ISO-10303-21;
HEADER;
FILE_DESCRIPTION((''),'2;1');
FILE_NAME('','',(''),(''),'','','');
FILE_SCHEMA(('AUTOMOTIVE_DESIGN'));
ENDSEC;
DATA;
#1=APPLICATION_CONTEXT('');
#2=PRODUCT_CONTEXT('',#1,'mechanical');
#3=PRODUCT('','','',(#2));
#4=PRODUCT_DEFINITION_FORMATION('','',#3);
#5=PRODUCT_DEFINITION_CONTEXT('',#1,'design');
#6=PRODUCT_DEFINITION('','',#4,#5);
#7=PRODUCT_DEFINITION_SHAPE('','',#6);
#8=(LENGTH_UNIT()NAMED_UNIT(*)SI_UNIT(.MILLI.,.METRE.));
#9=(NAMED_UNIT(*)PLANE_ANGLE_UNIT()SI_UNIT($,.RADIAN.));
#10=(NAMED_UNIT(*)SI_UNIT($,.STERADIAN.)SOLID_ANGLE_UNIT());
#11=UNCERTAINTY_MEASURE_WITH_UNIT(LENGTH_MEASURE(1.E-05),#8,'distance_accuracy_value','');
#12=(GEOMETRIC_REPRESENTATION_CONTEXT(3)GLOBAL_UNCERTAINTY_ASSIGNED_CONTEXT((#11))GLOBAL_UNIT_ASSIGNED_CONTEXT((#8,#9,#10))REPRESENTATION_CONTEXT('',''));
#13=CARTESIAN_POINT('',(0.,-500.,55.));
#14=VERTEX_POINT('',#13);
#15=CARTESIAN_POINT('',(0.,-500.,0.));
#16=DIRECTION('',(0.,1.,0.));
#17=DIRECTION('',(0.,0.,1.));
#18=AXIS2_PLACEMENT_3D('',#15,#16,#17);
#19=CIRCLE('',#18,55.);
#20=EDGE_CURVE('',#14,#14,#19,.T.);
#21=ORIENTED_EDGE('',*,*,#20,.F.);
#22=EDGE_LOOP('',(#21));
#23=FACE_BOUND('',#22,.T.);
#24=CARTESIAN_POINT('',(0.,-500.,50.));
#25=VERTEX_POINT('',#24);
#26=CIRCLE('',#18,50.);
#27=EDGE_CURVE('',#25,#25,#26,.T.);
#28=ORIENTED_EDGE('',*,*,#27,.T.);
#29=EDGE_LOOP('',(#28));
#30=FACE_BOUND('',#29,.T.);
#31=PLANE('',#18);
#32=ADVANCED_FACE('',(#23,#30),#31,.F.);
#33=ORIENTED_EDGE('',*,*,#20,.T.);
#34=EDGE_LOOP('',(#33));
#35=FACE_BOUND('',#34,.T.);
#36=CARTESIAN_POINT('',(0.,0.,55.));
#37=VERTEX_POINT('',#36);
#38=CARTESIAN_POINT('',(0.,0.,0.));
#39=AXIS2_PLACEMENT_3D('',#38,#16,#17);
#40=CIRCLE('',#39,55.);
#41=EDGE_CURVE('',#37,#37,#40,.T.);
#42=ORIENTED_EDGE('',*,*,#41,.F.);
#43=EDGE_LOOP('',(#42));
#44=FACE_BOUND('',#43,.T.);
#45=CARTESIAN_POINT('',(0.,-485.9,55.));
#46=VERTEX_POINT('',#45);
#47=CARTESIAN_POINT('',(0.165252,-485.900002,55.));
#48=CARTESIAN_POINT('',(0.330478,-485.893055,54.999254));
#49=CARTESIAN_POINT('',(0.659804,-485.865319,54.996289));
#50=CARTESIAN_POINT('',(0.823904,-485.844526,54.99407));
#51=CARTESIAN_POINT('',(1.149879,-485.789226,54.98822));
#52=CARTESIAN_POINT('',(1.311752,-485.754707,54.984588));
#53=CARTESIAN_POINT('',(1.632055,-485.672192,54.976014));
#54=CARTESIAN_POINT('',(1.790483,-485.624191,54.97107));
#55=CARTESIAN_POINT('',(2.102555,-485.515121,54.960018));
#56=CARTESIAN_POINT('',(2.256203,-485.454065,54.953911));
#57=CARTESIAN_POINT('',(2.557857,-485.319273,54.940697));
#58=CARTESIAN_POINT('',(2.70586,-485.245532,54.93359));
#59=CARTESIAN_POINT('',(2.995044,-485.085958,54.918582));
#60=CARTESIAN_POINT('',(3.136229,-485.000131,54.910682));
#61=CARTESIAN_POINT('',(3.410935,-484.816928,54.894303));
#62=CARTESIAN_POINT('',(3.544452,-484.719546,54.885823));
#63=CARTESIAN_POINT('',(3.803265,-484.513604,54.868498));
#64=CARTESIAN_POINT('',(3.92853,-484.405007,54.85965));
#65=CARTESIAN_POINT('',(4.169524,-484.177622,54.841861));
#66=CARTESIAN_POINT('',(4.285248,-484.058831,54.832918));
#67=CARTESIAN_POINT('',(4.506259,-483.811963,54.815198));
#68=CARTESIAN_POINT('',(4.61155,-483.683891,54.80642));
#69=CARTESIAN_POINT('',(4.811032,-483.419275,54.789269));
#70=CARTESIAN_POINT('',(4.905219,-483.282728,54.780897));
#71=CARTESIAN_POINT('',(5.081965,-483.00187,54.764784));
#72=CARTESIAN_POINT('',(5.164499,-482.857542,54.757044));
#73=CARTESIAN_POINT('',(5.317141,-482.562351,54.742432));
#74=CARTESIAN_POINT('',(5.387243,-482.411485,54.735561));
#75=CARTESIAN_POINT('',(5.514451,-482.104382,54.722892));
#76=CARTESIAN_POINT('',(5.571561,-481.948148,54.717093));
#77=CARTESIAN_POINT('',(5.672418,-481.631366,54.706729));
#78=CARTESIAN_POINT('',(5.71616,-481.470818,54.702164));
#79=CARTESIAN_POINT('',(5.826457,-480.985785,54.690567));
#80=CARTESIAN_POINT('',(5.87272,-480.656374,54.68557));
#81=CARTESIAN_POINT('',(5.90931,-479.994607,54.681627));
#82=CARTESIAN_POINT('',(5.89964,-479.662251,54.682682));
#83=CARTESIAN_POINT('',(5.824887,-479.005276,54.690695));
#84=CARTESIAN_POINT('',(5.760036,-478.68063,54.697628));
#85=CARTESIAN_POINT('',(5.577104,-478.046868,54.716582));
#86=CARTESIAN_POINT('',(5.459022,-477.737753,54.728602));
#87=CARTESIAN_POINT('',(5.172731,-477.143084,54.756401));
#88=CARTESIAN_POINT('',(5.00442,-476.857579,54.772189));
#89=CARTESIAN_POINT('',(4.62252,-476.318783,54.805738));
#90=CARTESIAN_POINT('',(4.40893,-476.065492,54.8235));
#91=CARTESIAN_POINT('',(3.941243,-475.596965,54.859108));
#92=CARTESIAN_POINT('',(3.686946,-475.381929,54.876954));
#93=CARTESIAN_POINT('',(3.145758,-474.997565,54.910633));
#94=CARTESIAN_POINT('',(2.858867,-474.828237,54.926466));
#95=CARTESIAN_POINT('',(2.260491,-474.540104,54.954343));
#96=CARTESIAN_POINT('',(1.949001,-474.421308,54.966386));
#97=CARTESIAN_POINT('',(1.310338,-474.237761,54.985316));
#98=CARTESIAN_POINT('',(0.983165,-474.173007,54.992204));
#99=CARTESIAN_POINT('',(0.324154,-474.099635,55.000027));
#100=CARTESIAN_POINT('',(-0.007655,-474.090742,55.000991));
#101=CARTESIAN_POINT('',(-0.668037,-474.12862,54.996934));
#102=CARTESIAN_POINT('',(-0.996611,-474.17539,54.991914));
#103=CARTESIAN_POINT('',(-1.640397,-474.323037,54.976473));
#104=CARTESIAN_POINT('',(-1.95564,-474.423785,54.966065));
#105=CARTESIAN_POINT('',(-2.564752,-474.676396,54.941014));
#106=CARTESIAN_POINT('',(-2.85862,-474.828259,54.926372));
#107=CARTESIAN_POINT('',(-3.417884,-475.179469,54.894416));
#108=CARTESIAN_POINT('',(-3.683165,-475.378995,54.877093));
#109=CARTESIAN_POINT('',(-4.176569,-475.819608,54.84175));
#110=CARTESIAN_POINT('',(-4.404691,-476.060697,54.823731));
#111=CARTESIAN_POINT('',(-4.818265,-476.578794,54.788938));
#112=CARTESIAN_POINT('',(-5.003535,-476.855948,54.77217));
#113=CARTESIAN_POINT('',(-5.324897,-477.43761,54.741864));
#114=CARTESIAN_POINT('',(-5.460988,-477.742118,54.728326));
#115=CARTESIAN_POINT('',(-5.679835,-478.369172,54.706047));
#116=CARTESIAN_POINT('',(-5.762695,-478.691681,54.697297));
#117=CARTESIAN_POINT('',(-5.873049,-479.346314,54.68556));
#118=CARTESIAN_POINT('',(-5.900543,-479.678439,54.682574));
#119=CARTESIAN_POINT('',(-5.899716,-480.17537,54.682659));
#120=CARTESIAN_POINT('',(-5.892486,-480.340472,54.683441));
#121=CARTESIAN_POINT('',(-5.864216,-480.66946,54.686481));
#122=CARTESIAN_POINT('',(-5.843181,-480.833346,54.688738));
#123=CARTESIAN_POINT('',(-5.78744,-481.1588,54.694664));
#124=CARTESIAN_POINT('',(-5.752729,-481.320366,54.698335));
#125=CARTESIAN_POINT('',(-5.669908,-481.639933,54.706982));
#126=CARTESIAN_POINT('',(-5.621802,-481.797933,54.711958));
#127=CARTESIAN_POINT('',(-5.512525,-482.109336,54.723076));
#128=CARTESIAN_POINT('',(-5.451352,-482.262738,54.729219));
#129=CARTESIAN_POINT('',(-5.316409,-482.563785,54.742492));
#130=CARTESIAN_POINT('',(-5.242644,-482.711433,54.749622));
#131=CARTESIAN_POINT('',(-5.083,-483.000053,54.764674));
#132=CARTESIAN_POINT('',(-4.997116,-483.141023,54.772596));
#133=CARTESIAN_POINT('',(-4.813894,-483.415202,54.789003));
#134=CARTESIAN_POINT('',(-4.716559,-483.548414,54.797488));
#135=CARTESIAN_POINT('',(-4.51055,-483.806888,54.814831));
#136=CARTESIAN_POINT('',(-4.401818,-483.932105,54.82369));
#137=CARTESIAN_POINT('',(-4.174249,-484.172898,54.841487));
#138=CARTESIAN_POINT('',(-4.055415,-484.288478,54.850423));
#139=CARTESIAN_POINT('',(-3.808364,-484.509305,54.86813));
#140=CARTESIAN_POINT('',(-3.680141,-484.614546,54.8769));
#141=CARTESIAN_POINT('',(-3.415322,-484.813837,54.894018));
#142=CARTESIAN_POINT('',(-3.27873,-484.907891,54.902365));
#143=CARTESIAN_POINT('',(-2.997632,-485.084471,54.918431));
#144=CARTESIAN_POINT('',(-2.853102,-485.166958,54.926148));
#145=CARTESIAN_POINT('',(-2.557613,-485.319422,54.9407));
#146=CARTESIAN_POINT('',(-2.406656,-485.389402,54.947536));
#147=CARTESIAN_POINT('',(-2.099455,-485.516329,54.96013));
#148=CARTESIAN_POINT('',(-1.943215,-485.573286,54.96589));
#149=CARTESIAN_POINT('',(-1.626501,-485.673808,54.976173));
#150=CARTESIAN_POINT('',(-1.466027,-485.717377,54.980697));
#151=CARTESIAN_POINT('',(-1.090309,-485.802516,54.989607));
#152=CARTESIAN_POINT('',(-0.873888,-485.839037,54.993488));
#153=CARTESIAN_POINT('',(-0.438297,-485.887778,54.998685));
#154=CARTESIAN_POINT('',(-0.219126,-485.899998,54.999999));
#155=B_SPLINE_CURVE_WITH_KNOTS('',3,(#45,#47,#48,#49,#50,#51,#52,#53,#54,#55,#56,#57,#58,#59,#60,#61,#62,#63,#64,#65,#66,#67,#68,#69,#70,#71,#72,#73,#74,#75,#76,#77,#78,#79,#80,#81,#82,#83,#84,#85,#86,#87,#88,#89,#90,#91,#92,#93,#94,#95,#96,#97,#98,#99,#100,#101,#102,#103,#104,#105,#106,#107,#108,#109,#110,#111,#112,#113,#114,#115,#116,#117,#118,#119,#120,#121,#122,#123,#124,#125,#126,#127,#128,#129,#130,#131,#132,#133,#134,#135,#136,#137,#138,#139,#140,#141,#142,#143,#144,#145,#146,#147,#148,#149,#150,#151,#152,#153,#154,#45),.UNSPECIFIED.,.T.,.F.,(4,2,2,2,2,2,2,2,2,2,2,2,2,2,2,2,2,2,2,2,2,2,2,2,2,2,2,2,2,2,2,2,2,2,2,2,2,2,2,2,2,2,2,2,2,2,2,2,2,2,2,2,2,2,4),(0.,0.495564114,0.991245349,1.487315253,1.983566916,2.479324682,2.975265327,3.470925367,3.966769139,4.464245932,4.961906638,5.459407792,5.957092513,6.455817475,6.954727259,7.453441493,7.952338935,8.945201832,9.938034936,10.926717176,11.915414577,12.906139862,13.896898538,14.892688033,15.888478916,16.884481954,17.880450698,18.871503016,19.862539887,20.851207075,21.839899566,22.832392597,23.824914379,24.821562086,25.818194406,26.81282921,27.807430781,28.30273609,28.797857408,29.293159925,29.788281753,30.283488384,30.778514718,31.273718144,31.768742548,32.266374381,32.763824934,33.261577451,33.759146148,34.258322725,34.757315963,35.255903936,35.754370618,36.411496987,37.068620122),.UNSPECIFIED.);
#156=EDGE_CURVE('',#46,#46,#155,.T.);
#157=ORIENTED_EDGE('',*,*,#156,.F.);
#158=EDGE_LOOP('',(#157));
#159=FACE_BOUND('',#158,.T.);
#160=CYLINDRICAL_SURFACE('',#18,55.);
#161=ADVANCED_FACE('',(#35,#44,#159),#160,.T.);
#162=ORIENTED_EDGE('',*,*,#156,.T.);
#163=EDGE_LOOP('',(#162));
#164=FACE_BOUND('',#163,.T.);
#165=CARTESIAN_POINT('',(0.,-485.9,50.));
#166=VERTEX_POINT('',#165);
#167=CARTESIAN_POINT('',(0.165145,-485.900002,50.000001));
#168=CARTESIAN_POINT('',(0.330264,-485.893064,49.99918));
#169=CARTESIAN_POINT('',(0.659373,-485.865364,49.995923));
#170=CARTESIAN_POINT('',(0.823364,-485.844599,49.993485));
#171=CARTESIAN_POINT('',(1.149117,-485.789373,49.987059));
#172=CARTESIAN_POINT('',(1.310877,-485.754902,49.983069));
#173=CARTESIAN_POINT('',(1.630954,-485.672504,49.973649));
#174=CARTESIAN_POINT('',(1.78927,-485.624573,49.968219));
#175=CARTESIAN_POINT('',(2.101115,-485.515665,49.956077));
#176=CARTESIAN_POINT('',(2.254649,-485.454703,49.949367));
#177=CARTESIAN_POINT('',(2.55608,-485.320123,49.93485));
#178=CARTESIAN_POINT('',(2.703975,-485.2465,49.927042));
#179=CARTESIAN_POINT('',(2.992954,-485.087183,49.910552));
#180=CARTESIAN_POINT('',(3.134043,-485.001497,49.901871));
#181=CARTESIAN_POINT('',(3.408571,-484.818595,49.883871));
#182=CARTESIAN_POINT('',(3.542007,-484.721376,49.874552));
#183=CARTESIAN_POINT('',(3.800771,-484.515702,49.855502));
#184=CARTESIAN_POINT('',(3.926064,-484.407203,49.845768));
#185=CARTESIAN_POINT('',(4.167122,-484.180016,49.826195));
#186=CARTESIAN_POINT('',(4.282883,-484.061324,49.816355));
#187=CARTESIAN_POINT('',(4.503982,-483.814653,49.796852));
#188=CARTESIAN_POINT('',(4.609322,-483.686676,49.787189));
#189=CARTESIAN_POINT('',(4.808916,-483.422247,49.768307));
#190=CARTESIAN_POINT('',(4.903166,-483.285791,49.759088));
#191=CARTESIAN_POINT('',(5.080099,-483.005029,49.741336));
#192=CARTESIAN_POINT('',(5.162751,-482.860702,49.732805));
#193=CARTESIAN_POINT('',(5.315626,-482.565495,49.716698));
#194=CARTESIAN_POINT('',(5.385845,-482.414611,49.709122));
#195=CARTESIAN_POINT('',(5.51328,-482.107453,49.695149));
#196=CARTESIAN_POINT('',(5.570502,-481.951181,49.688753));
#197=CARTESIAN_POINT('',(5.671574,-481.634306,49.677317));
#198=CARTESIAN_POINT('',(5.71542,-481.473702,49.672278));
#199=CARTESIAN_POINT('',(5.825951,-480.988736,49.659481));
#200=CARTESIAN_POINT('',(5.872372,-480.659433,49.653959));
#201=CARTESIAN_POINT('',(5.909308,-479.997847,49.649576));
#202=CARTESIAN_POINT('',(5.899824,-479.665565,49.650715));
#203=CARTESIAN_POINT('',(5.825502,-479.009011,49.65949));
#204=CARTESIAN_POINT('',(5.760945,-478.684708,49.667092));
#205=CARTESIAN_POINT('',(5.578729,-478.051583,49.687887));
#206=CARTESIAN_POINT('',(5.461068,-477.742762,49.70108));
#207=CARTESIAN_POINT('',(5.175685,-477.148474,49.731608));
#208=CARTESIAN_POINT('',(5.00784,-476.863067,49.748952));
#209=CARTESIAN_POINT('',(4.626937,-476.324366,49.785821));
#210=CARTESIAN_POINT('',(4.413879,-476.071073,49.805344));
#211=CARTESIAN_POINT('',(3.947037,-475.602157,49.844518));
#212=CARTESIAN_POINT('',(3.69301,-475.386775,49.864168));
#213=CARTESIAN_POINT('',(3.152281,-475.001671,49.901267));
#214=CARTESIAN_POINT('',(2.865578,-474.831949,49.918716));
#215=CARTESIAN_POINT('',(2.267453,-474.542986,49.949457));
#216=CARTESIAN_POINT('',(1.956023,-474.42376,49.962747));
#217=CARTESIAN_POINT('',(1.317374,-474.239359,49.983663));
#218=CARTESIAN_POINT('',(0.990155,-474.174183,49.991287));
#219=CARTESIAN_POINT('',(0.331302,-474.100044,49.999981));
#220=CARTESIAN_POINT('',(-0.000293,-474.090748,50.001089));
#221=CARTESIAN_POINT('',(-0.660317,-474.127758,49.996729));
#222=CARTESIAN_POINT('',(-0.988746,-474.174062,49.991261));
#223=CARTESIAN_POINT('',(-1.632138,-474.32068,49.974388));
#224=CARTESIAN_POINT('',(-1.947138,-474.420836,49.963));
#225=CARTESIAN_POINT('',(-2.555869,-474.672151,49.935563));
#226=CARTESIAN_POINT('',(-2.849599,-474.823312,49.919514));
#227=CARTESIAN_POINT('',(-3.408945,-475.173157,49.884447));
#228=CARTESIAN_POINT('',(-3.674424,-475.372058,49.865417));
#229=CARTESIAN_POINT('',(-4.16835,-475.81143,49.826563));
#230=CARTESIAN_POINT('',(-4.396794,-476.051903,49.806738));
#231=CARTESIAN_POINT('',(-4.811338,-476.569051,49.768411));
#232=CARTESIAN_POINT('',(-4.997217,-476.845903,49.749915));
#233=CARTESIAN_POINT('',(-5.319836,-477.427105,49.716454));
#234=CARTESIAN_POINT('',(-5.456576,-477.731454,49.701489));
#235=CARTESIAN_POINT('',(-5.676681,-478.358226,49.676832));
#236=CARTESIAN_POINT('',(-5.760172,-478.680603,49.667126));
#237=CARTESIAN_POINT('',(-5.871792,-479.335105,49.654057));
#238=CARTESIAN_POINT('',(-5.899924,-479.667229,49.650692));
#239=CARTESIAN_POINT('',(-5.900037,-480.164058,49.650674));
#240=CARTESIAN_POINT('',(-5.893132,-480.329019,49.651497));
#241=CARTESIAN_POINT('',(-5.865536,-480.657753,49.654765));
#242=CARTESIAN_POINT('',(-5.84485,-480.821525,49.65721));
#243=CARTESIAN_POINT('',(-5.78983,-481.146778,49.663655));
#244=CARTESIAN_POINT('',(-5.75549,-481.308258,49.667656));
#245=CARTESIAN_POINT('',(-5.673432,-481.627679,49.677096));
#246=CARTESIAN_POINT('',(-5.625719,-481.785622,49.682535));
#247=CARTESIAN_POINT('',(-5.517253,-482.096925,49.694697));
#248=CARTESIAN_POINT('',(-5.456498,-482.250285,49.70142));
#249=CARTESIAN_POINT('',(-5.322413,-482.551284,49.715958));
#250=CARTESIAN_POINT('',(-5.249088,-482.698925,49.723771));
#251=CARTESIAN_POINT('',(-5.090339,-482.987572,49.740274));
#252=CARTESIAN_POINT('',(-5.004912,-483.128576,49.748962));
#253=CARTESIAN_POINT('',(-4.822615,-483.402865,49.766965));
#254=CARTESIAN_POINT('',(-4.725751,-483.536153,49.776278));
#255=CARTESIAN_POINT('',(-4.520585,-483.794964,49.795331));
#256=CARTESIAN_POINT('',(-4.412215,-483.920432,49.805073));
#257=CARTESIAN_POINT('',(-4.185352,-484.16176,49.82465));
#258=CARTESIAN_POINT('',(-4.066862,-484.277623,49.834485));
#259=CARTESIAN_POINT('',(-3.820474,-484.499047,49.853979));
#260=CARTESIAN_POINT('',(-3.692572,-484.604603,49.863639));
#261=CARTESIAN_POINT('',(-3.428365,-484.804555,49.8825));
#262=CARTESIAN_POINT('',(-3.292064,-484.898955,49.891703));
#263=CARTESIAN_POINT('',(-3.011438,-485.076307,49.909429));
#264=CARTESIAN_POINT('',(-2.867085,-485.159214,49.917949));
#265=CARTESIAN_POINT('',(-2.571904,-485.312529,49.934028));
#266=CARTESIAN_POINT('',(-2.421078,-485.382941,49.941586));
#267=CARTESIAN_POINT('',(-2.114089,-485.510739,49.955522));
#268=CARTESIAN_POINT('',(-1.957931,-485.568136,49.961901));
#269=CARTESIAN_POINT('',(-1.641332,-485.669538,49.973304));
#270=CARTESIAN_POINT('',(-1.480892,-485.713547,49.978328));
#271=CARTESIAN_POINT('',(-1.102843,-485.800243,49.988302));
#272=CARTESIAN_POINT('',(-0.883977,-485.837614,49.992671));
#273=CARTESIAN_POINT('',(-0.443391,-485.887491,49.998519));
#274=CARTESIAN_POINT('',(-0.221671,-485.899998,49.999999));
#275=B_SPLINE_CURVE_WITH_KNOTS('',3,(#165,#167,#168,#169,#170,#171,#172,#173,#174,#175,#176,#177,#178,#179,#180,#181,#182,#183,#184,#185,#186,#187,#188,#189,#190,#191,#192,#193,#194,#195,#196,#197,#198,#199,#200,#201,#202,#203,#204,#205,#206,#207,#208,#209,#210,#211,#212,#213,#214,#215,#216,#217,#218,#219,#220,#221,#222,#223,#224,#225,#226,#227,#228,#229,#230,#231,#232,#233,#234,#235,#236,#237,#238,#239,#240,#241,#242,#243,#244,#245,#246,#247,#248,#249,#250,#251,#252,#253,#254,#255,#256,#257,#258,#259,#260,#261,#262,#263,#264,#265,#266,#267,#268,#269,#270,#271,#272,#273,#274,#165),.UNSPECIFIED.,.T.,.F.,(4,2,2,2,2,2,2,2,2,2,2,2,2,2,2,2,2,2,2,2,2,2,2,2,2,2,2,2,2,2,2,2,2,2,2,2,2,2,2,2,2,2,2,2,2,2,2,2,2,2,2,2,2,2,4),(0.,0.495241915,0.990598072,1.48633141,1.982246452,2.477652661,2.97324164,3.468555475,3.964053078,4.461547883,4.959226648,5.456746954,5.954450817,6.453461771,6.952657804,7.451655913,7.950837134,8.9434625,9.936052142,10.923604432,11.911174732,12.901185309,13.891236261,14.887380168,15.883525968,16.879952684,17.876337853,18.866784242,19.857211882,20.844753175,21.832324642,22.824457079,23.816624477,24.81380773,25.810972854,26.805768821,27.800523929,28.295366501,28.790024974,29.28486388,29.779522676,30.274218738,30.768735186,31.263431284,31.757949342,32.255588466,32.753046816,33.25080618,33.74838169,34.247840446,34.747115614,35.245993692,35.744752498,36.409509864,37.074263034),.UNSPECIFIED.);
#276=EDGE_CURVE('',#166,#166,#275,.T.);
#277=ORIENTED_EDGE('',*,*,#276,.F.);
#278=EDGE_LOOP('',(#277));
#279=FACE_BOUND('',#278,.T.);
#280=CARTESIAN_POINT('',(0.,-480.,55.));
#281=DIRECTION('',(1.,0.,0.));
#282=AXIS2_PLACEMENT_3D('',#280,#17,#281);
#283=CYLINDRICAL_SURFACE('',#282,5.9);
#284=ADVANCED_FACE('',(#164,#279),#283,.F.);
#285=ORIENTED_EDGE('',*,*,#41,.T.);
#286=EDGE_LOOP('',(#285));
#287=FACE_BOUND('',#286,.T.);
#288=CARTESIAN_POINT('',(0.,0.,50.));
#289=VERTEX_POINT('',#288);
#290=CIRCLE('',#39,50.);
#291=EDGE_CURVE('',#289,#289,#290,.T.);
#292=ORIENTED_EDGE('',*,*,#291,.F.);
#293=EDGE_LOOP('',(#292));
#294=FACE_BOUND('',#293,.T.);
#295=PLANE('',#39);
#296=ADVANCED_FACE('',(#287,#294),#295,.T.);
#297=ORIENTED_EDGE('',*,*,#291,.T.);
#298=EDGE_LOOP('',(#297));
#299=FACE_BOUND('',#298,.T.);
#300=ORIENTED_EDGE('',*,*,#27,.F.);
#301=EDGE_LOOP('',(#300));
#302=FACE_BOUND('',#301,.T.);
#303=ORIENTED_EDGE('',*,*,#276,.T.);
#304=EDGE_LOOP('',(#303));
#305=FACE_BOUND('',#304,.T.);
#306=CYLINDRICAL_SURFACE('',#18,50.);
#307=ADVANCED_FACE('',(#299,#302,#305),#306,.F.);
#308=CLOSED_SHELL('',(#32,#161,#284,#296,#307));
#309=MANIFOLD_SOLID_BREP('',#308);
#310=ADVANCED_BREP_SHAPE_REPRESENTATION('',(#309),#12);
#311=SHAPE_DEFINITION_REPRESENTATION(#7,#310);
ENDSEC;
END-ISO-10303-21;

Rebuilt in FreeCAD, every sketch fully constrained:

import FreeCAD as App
import Part
import Sketcher

V = App.Vector

doc = App.newDocument("Part")
params = doc.addObject("Spreadsheet::Sheet", "Params")
for row, (alias, value) in enumerate([
    ("sketch1_diameter", "110 mm"),
    ("sketch1_diameter2", "100 mm"),
    ("pad1_length", "500 mm"),
    ("sketch2_diameter", "11.8 mm"),
    ("hole_diameter", "11.8 mm"),
    ("hole_depth", "30.32 mm"),
], start=1):
    params.set(f"A{row}", alias)
    params.set(f"B{row}", "=" + value)
    params.setAlias(f"B{row}", alias)

body = doc.addObject("PartDesign::Body", "Body")

# Sketch on XZ plane
sketch1 = body.newObject("Sketcher::SketchObject", "Sketch")
sketch1.AttachmentSupport = (doc.getObject("XZ_Plane"), [""])
sketch1.MapMode = "FlatFace"
sketch1.addGeometry([
    Part.Circle(V(0, 0, 0), V(0, 0, 1), 55),
    Part.Circle(V(0, 0, 0), V(0, 0, 1), 50),
], False)
sketch1.addConstraint([
    Sketcher.Constraint("Coincident", 0, 3, -1, 1),
    Sketcher.Constraint("Coincident", 1, 3, -1, 1),
    Sketcher.Constraint("Diameter", 0, 110.0),
    Sketcher.Constraint("Diameter", 1, 100.0),
])
sketch1.setExpression("Constraints[2]", "Params.sketch1_diameter")
sketch1.setExpression("Constraints[3]", "Params.sketch1_diameter2")
pad1 = body.newObject("PartDesign::Pad", "Pad")
pad1.Profile = sketch1
pad1.setExpression("Length", "Params.pad1_length")

# Sketch on XY plane
sketch2 = body.newObject("Sketcher::SketchObject", "Sketch001")
sketch2.AttachmentSupport = (doc.getObject("XY_Plane"), [""])
sketch2.MapMode = "FlatFace"
sketch2.AttachmentOffset = App.Placement(V(0, 0, 55), App.Rotation())
sketch2.addGeometry(Part.Circle(V(0, -480, 0), V(0, 0, 1), 5.9), False)
sketch2.addConstraint([
    Sketcher.Constraint("PointOnObject", 0, 3, -2),
    Sketcher.Constraint("Diameter", 0, 11.8),
    Sketcher.Constraint("DistanceY", 0, 3, -1, 1, 480.0),
])
sketch2.setExpression("Constraints[1]", "Params.sketch2_diameter")
doc.recompute()
hole = body.newObject("PartDesign::Hole", "Hole")
hole.Profile = sketch2
hole.ThreadType = "None"
hole.setExpression("Diameter", "Params.hole_diameter")
hole.DepthType = "Dimension"
hole.setExpression("Depth", "Params.hole_depth")
hole.DrillPoint = "Angled"
hole.DrillPointAngle = 118

doc.recompute()
